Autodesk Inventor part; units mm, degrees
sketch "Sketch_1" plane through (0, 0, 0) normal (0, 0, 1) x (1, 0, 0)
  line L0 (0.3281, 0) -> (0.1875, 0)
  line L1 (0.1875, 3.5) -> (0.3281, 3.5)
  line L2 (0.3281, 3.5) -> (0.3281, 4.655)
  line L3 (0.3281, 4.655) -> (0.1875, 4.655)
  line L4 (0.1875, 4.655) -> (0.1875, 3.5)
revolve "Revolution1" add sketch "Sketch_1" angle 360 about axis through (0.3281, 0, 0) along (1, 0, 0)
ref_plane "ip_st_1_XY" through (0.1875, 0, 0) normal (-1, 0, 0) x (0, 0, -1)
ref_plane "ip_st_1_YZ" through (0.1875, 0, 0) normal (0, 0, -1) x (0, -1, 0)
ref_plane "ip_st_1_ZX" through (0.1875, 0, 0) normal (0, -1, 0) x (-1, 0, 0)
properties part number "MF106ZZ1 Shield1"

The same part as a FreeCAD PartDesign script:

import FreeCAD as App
import Part
import Sketcher
Q = App.Units.Quantity


def add_polygon(sketch, points):
    """Adds a closed chain of lines whose ends are joined by coincident constraints."""
    first, n = sketch.GeometryCount, len(points)
    for a, b in zip(points, points[1:] + points[:1]):
        sketch.addGeometry(Part.LineSegment(App.Vector(*a, 0), App.Vector(*b, 0)), False)
    for i in range(n):
        sketch.addConstraint(Sketcher.Constraint("Coincident", first + i, 2, first + (i + 1) % n, 1))

doc = App.newDocument("Part")
body = doc.addObject("PartDesign::Body", "Body")

# Sketch on XY plane
sketch1 = body.newObject("Sketcher::SketchObject", "Sketch")
sketch1.AttachmentSupport = (doc.getObject("XY_Plane"), [""])
sketch1.MapMode = "FlatFace"
add_polygon(sketch1, [(0.19, 4.66), (0.19, 3.5), (0.33, 3.5), (0.33, 4.66)])  # lines 0-3
sketch1.addConstraint(Sketcher.Constraint("Vertical", 0))
sketch1.addConstraint(Sketcher.Constraint("Horizontal", 1))
sketch1.addConstraint(Sketcher.Constraint("Vertical", 2))
sketch1.addConstraint(Sketcher.Constraint("Horizontal", 3))
sketch1.addConstraint(Sketcher.Constraint("DistanceY", -1, 1, 0, 2, Q("3.5 mm")))
sketch1.addConstraint(Sketcher.Constraint("DistanceY", 0, 2, 0, 1, Q("1.155 mm")))
sketch1.addConstraint(Sketcher.Constraint("DistanceX", 1, 1, 1, 2, Q("0.1406 mm")))
sketch1.addConstraint(Sketcher.Constraint("DistanceX", -1, 1, 1, 2, Q("0.328 mm")))
revolution = body.newObject("PartDesign::Revolution", "Revolution")
revolution.Profile = sketch1
revolution.ReferenceAxis = (sketch1, ["H_Axis"])
revolution.Angle = 360

doc.recompute()
